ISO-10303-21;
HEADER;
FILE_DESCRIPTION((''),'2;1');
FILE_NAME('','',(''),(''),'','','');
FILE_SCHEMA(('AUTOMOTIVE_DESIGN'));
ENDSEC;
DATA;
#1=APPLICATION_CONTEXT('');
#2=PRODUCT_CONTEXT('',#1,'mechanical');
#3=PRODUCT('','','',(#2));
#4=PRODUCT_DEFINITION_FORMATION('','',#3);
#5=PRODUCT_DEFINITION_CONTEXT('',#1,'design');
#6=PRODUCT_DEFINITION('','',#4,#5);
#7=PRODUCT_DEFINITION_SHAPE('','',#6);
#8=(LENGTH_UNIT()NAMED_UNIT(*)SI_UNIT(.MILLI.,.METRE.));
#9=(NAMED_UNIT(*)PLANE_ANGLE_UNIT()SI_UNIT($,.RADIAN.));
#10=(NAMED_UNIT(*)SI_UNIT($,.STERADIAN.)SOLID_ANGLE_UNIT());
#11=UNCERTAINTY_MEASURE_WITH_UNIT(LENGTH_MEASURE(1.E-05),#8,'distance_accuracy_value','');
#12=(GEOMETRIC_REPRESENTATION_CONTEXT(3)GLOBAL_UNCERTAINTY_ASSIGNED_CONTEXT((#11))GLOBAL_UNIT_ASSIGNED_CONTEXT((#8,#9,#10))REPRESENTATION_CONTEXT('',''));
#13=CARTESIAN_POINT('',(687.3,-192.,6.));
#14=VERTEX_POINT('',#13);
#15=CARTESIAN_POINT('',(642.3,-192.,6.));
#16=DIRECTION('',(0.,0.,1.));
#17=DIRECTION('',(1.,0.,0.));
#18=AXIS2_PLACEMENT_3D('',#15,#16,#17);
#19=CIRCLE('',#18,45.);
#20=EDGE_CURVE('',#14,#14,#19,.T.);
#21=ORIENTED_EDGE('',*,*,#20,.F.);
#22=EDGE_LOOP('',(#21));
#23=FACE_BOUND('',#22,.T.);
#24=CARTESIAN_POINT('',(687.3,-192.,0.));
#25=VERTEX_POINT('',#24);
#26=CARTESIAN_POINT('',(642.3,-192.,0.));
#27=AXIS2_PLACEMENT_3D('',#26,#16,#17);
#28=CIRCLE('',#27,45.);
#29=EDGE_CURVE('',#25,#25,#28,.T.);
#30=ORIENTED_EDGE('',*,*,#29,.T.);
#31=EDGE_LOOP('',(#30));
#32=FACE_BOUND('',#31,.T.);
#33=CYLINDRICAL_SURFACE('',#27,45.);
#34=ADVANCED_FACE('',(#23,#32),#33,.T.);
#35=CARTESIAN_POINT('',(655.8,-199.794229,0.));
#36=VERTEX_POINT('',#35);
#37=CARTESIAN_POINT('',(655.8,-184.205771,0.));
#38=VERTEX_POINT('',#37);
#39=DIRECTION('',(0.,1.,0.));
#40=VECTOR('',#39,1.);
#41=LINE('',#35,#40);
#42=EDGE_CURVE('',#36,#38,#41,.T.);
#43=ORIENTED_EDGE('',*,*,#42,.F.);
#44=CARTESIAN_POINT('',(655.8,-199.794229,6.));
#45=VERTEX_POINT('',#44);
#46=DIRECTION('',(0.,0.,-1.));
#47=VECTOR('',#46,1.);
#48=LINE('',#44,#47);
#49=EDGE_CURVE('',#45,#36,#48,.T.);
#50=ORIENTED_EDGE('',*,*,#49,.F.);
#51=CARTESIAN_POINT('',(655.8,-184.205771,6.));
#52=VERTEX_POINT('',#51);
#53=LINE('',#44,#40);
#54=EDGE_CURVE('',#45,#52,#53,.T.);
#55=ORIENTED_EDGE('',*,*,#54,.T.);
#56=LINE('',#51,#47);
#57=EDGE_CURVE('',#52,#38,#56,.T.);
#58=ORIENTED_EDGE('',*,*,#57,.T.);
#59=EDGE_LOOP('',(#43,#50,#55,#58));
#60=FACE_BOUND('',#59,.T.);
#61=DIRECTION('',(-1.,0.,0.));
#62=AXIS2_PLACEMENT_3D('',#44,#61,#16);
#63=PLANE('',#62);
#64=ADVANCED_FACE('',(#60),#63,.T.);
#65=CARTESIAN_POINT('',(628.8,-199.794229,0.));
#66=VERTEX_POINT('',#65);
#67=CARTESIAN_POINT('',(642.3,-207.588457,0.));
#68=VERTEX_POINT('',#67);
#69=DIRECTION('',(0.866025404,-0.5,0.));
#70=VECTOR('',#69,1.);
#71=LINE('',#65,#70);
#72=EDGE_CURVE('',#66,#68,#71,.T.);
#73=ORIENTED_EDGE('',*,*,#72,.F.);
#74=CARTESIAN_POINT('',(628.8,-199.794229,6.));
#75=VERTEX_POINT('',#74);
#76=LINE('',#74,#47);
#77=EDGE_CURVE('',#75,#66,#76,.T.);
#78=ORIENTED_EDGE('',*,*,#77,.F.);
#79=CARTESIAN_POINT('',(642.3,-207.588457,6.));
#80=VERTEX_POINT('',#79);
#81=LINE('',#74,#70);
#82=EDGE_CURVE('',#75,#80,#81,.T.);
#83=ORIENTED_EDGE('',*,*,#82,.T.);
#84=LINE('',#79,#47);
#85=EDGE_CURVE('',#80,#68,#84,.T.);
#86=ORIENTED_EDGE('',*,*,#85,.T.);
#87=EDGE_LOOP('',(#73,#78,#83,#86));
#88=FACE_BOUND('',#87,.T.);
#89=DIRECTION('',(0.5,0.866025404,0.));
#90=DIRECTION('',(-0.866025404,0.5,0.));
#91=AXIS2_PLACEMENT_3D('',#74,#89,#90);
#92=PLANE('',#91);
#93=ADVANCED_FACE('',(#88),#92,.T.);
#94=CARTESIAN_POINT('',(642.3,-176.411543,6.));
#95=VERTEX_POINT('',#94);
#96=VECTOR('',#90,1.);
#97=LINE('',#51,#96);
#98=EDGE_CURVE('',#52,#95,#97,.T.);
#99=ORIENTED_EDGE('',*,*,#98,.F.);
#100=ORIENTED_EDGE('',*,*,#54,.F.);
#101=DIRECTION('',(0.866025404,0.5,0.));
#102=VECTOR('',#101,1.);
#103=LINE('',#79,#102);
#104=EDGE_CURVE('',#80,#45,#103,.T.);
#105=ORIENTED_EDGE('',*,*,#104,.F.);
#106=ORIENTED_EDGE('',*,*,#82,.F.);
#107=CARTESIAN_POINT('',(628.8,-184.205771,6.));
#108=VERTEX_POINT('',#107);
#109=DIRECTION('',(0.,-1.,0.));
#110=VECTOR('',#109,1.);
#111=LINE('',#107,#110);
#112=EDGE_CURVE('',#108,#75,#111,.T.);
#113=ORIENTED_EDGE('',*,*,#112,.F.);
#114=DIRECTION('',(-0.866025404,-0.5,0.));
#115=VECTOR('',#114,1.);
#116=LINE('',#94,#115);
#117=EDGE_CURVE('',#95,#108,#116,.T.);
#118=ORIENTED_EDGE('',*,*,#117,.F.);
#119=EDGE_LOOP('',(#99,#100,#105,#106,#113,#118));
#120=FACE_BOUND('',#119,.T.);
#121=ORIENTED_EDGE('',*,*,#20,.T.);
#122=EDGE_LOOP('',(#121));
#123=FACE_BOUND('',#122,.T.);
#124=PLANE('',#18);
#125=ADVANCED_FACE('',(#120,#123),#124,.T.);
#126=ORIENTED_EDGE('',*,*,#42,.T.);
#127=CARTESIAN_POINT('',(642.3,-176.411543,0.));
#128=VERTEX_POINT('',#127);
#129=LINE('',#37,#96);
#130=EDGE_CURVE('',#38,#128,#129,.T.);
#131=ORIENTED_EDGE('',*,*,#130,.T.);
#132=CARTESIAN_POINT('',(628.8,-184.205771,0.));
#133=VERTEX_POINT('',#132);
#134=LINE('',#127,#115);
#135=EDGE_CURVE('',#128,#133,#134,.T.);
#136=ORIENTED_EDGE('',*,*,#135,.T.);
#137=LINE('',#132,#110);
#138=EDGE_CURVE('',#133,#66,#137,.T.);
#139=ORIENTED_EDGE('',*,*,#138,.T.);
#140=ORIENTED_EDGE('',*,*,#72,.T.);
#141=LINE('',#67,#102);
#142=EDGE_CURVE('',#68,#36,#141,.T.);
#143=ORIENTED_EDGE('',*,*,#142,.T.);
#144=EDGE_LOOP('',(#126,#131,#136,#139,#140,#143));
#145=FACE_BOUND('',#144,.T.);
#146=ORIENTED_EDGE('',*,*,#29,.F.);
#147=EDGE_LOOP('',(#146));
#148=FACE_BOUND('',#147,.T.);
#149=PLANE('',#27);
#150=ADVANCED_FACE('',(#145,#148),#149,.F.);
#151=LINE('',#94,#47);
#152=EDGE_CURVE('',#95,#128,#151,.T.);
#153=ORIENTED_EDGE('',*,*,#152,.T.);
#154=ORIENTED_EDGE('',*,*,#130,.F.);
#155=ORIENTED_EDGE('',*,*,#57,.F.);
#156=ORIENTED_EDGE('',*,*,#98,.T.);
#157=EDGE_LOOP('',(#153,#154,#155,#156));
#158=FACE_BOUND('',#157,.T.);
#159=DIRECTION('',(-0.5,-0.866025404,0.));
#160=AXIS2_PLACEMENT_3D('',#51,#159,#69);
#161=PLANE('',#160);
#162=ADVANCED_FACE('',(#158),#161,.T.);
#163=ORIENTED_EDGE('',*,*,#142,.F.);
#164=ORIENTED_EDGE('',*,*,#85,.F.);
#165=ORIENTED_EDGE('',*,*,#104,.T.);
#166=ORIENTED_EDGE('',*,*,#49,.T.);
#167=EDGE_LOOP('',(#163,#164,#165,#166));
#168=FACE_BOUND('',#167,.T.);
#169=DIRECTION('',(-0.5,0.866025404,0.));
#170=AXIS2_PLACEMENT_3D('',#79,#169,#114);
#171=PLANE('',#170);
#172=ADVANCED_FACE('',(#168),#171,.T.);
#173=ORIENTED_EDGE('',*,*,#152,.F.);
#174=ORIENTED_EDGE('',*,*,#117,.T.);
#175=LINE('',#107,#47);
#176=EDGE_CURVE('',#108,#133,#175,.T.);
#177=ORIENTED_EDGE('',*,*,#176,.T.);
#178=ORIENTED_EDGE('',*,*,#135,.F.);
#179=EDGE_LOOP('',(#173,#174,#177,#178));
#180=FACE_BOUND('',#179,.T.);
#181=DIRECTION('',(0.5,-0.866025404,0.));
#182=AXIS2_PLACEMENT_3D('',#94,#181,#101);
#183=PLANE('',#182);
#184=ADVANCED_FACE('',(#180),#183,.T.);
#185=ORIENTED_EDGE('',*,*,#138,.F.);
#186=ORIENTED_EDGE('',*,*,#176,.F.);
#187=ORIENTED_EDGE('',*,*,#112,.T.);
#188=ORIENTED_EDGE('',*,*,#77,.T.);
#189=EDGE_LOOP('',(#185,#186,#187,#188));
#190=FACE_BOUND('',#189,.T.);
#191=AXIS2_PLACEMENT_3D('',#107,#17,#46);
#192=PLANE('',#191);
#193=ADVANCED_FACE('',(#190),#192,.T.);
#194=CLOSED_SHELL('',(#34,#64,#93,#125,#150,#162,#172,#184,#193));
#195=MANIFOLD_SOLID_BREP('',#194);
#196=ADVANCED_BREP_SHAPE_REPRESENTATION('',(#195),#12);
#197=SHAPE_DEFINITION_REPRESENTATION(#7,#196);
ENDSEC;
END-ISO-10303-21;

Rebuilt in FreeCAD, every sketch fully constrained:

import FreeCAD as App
import Part
import Sketcher
Q = App.Units.Quantity


def add_polygon(sketch, points):
    """Adds a closed chain of lines whose ends are joined by coincident constraints."""
    first, n = sketch.GeometryCount, len(points)
    for a, b in zip(points, points[1:] + points[:1]):
        sketch.addGeometry(Part.LineSegment(App.Vector(*a, 0), App.Vector(*b, 0)), False)
    for i in range(n):
        sketch.addConstraint(Sketcher.Constraint("Coincident", first + i, 2, first + (i + 1) % n, 1))

doc = App.newDocument("Part")
body = doc.addObject("PartDesign::Body", "Body")

# Sketch on XY plane
sketch1 = body.newObject("Sketcher::SketchObject", "Sketch")
sketch1.AttachmentSupport = (doc.getObject("XY_Plane"), [""])
sketch1.MapMode = "FlatFace"
sketch1.addGeometry(Part.Circle(App.Vector(642, -192, 0), App.Vector(0, 0, 1), 25), False)  # 0
add_polygon(sketch1, [(629, -200), (629, -184), (642, -176), (656, -184), (656, -200), (642, -208)])  # lines 1-6
sketch1.addConstraint(Sketcher.Constraint("Vertical", 1))
sketch1.addConstraint(Sketcher.Constraint("Vertical", 4))
sketch1.addConstraint(Sketcher.Constraint("Parallel", 2, 5))
sketch1.addConstraint(Sketcher.Constraint("Parallel", 3, 6))
sketch1.addConstraint(Sketcher.Constraint("Horizontal", 1, 2, 3, 2))
sketch1.addConstraint(Sketcher.Constraint("Horizontal", 4, 2, 6, 2))
sketch1.addConstraint(Sketcher.Constraint("Vertical", 0, 3, 2, 2))
sketch1.addConstraint(Sketcher.Constraint("Vertical", 2, 2, 5, 2))
sketch1.addConstraint(Sketcher.Constraint("Diameter", 0, 50.0))
sketch1.addConstraint(Sketcher.Constraint("Angle", 2, Q("30 deg")))
sketch1.addConstraint(Sketcher.Constraint("DistanceY", 0, 3, -1, 1, 192.0))
sketch1.addConstraint(Sketcher.Constraint("DistanceX", 1, 2, 3, 2, 27.0))
sketch1.addConstraint(Sketcher.Constraint("DistanceX", -1, 1, 0, 3, 642.3))
sketch1.addConstraint(Sketcher.Constraint("DistanceY", 1, 1, 1, 2, 15.588457))
sketch1.addConstraint(Sketcher.Constraint("DistanceY", 1, 2, -1, 1, 184.205771))
pad1 = body.newObject("PartDesign::Pad", "Pad")
pad1.Profile = sketch1
pad1.Length = 6

# Sketch on XY plane
sketch2 = body.newObject("Sketcher::SketchObject", "Sketch001")
sketch2.AttachmentSupport = (doc.getObject("XY_Plane"), [""])
sketch2.MapMode = "FlatFace"
sketch2.addGeometry(Part.Circle(App.Vector(642, -192, 0), App.Vector(0, 0, 1), 45), False)
sketch2.addGeometry(Part.Circle(App.Vector(642, -192, 0), App.Vector(0, 0, 1), 25), False)
sketch2.addConstraint(Sketcher.Constraint("Coincident", 1, 3, 0, 3))
sketch2.addConstraint(Sketcher.Constraint("Diameter", 0, 90.0))
sketch2.addConstraint(Sketcher.Constraint("Diameter", 1, 50.0))
sketch2.addConstraint(Sketcher.Constraint("DistanceY", 0, 3, -1, 1, 192.0))
sketch2.addConstraint(Sketcher.Constraint("DistanceX", -1, 1, 0, 3, 642.3))
pad2 = body.newObject("PartDesign::Pad", "Pad001")
pad2.Profile = sketch2
pad2.Length = 6

doc.recompute()
